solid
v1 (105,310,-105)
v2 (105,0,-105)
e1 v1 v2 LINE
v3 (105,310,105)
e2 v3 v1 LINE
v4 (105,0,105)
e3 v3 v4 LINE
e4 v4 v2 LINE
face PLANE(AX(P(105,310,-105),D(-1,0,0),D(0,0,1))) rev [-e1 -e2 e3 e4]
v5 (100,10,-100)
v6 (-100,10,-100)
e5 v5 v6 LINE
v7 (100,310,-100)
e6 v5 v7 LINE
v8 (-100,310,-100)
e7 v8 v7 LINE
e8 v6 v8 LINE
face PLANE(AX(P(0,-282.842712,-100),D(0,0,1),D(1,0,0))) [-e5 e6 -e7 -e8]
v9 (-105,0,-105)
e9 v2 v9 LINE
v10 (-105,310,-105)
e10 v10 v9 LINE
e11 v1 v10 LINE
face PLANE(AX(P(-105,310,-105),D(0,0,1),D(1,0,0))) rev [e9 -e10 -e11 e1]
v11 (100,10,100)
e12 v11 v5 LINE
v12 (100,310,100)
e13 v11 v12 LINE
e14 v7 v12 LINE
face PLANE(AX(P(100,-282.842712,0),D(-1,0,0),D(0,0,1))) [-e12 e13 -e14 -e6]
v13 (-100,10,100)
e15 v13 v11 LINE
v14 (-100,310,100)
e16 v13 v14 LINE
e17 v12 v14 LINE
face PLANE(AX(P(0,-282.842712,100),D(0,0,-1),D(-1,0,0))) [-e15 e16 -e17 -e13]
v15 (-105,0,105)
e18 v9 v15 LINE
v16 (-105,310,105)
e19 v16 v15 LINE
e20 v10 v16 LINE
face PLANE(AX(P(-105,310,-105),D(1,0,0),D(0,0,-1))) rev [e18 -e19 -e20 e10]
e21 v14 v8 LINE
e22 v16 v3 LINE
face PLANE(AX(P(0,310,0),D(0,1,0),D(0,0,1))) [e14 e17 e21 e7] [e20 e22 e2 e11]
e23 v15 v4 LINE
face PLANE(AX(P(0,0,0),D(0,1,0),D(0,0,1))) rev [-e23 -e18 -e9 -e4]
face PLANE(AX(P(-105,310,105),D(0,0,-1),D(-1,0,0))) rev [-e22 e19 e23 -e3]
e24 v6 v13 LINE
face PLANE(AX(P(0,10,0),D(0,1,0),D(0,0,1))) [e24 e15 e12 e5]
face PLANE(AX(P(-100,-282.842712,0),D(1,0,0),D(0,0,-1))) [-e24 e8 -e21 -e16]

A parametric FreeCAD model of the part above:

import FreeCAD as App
import Part
import Sketcher
Q = App.Units.Quantity

doc = App.newDocument("Part")
body = doc.addObject("PartDesign::Body", "Body")

sketch1 = body.newObject("Sketcher::SketchObject", "Sketch")
sketch1.AttachmentSupport = (doc.getObject("XZ_Plane"), [""])
sketch1.MapMode = "FlatFace"
sketch1.addGeometry([
    Part.LineSegment(App.Vector(-105, -105, 0), App.Vector(-105, 105, 0)),
    Part.LineSegment(App.Vector(-105, 105, 0), App.Vector(105, 105, 0)),
    Part.LineSegment(App.Vector(105, 105, 0), App.Vector(105, -105, 0)),
    Part.LineSegment(App.Vector(105, -105, 0), App.Vector(-105, -105, 0)),
], False)
sketch1.addConstraint([
    Sketcher.Constraint("Coincident", 0, 2, 1, 1),
    Sketcher.Constraint("Coincident", 1, 2, 2, 1),
    Sketcher.Constraint("Coincident", 2, 2, 3, 1),
    Sketcher.Constraint("Coincident", 3, 2, 0, 1),
    Sketcher.Constraint("Vertical", 0),
    Sketcher.Constraint("Horizontal", 1),
    Sketcher.Constraint("Vertical", 2),
    Sketcher.Constraint("Horizontal", 3),
    Sketcher.Constraint("Symmetric", 0, 2, 2, 2, -1, 1),
    Sketcher.Constraint("Equal", 3, 0),
    Sketcher.Constraint("DistanceX", 1, 1, 1, 2, Q("210 mm")),
])
pad1 = body.newObject("PartDesign::Pad", "Pad")
pad1.Profile = sketch1
pad1.Length = 310
pad1.Reversed = True

sketch2 = body.newObject("Sketcher::SketchObject", "Sketch001")
sketch2.AttachmentSupport = (doc.getObject("XZ_Plane"), [""])
sketch2.MapMode = "FlatFace"
sketch2.AttachmentOffset = App.Placement(App.Vector(0, 0, -310), App.Rotation())
sketch2.addGeometry([
    Part.LineSegment(App.Vector(-100, -100, 0), App.Vector(-100, 100, 0)),
    Part.LineSegment(App.Vector(-100, 100, 0), App.Vector(100, 100, 0)),
    Part.LineSegment(App.Vector(100, 100, 0), App.Vector(100, -100, 0)),
    Part.LineSegment(App.Vector(100, -100, 0), App.Vector(-100, -100, 0)),
], False)
sketch2.addConstraint([
    Sketcher.Constraint("Coincident", 0, 2, 1, 1),
    Sketcher.Constraint("Coincident", 1, 2, 2, 1),
    Sketcher.Constraint("Coincident", 2, 2, 3, 1),
    Sketcher.Constraint("Coincident", 3, 2, 0, 1),
    Sketcher.Constraint("Vertical", 0),
    Sketcher.Constraint("Horizontal", 1),
    Sketcher.Constraint("Vertical", 2),
    Sketcher.Constraint("Horizontal", 3),
    Sketcher.Constraint("Symmetric", 0, 2, 2, 2, -1, 1),
    Sketcher.Constraint("Equal", 3, 0),
    Sketcher.Constraint("DistanceX", 1, 1, 1, 2, Q("200 mm")),
])
pocket1 = body.newObject("PartDesign::Pocket", "Pocket")
pocket1.Profile = sketch2
pocket1.Length = 300
pocket1.Reversed = True

doc.recompute()
